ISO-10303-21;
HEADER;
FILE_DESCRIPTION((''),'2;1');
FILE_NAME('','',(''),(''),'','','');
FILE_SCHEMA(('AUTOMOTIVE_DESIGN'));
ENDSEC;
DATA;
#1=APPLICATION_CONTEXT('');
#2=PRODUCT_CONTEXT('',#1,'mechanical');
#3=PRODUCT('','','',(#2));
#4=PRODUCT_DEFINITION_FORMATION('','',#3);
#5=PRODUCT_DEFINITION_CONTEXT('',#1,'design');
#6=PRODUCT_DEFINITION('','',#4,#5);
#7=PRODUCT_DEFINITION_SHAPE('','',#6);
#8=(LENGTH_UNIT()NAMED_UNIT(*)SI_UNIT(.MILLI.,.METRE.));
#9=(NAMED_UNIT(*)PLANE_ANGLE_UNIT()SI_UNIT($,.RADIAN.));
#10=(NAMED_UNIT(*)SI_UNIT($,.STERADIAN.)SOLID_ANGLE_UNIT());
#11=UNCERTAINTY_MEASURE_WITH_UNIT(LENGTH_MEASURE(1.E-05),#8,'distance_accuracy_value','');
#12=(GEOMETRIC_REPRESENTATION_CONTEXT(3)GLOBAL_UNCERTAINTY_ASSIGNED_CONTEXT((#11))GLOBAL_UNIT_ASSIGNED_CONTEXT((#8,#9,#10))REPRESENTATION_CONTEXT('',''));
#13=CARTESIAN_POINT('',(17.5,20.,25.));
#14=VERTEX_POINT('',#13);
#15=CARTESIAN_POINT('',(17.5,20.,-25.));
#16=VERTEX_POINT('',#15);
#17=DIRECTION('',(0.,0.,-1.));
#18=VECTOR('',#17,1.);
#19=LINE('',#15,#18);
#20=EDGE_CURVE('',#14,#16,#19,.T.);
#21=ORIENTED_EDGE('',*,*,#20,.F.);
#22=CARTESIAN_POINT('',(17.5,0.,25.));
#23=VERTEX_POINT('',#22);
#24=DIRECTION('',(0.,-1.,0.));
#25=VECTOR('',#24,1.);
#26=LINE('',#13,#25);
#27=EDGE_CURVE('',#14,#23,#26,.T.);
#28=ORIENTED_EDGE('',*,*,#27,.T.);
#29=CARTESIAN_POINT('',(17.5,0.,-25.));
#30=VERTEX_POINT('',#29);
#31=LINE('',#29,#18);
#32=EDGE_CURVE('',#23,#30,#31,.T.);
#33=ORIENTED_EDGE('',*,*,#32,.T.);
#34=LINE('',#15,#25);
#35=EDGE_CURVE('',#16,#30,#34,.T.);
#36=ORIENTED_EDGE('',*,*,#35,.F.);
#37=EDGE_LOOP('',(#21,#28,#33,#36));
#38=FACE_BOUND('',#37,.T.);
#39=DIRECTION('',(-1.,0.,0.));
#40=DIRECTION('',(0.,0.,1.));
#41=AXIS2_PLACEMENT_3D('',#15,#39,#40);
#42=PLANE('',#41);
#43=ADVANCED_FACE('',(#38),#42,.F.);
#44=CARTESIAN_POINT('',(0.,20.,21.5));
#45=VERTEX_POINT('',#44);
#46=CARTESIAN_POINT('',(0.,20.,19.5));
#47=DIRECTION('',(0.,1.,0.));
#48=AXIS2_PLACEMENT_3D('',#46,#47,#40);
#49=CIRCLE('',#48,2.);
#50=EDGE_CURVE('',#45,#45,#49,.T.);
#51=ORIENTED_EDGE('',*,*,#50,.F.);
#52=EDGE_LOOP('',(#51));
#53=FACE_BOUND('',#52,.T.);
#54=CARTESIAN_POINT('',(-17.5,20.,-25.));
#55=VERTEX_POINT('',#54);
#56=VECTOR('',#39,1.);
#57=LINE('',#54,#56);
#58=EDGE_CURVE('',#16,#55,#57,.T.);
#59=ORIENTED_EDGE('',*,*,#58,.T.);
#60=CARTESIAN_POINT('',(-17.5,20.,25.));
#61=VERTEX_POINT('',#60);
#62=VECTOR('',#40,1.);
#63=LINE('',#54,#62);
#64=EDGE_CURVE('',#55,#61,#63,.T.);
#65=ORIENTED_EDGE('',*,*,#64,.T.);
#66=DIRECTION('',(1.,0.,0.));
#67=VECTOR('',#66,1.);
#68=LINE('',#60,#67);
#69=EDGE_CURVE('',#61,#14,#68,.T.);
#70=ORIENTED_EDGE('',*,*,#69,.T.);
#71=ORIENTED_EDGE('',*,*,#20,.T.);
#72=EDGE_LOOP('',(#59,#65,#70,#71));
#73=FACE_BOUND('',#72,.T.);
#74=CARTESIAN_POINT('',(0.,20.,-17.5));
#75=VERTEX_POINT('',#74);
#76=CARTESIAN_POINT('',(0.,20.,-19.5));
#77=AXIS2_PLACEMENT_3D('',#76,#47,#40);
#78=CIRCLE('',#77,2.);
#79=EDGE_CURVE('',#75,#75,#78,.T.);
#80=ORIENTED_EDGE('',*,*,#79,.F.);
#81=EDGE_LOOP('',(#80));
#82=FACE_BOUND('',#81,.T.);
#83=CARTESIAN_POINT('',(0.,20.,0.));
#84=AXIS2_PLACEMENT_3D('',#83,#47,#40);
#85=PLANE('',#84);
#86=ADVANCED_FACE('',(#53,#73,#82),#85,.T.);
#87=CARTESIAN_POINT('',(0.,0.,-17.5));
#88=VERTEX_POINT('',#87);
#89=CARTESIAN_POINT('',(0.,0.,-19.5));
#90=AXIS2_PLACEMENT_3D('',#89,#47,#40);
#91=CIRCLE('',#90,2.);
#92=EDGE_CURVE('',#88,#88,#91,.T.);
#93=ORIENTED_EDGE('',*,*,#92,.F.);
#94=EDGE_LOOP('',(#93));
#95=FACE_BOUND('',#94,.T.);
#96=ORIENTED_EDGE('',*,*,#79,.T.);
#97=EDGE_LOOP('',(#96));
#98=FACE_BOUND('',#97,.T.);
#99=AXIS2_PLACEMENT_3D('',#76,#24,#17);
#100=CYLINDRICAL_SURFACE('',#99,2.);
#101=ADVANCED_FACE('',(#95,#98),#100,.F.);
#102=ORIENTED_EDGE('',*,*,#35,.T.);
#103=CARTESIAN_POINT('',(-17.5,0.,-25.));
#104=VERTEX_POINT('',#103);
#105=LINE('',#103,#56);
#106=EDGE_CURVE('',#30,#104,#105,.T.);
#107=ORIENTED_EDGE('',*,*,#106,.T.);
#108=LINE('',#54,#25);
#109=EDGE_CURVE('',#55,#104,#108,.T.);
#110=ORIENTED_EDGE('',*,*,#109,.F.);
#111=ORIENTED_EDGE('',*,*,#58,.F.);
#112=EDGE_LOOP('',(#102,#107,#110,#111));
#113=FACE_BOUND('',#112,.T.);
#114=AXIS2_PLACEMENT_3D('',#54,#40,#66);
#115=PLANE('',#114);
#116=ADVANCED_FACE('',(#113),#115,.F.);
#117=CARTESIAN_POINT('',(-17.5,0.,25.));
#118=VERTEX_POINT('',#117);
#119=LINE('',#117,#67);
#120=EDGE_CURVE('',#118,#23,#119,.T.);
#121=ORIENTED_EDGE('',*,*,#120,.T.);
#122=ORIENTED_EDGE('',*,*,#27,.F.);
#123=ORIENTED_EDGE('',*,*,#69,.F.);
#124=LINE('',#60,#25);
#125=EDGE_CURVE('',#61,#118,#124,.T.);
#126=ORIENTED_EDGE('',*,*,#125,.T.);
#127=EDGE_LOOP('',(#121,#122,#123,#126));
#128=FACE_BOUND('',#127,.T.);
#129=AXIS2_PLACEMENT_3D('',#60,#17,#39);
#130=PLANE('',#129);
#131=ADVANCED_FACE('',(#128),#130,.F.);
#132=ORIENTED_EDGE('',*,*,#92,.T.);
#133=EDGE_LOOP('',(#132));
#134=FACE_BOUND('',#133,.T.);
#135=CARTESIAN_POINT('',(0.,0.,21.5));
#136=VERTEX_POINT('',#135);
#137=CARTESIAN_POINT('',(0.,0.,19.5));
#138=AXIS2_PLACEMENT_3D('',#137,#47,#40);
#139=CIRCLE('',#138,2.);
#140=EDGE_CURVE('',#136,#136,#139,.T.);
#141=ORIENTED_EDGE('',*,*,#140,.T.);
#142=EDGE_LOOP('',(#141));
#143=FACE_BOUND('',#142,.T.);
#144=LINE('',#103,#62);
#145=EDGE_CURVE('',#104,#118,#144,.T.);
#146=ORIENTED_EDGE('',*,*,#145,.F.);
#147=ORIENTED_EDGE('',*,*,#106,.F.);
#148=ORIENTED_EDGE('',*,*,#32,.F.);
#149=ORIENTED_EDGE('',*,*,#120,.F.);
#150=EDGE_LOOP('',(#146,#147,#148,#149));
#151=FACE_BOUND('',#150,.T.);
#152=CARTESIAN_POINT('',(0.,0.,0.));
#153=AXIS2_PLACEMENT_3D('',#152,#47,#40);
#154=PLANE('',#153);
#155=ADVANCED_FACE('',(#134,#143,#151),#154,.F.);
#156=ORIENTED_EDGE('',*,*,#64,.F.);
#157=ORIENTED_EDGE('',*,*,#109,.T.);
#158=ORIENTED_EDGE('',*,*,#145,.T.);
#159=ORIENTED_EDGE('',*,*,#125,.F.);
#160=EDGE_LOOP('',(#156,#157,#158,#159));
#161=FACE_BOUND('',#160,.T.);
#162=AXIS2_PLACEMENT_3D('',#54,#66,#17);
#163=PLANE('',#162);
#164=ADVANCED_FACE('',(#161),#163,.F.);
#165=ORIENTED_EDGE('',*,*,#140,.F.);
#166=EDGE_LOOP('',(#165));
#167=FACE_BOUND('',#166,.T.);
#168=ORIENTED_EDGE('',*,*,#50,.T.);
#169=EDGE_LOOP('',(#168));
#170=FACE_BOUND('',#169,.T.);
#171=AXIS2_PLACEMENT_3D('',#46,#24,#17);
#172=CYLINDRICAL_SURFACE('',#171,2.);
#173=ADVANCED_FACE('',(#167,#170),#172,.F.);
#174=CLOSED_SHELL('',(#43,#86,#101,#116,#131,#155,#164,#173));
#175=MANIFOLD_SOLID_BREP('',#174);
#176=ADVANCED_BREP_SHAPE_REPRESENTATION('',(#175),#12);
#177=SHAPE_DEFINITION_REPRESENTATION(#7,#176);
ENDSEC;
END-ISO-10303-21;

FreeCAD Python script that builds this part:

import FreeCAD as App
import Part
import Sketcher
Q = App.Units.Quantity

doc = App.newDocument("Part")
body = doc.addObject("PartDesign::Body", "Body")

# Sketch on XZ plane
sketch1 = body.newObject("Sketcher::SketchObject", "Sketch")
sketch1.AttachmentSupport = (doc.getObject("XZ_Plane"), [""])
sketch1.MapMode = "FlatFace"
sketch1.addGeometry([
    Part.LineSegment(App.Vector(-17.5, -25, 0), App.Vector(-17.5, 25, 0)),  # 0
    Part.LineSegment(App.Vector(-17.5, 25, 0), App.Vector(17.5, 25, 0)),  # 1
    Part.LineSegment(App.Vector(17.5, 25, 0), App.Vector(17.5, -25, 0)),  # 2
    Part.LineSegment(App.Vector(17.5, -25, 0), App.Vector(-17.5, -25, 0)),  # 3
    Part.Circle(App.Vector(0, 19.5, 0), App.Vector(0, 0, 1), 2),  # 4
    Part.Circle(App.Vector(0, -19.5, 0), App.Vector(0, 0, 1), 2),  # 5
], False)
sketch1.addConstraint([
    Sketcher.Constraint("Coincident", 0, 2, 1, 1),
    Sketcher.Constraint("Coincident", 1, 2, 2, 1),
    Sketcher.Constraint("Coincident", 2, 2, 3, 1),
    Sketcher.Constraint("Coincident", 3, 2, 0, 1),
    Sketcher.Constraint("Vertical", 0),
    Sketcher.Constraint("Horizontal", 1),
    Sketcher.Constraint("Vertical", 2),
    Sketcher.Constraint("Horizontal", 3),
    Sketcher.Constraint("Equal", 4, 5),
    Sketcher.Constraint("Symmetric", 4, 3, 5, 3, -1, 1),
    Sketcher.Constraint("Symmetric", 0, 2, 2, 2, -1, 1),
    Sketcher.Constraint("PointOnObject", 4, 3, -2),
    Sketcher.Constraint("Diameter", 4, Q("4 mm")),
    Sketcher.Constraint("DistanceX", 1, 1, 1, 2, Q("35 mm")),
    Sketcher.Constraint("DistanceY", 0, 1, 0, 2, Q("50 mm")),
    Sketcher.Constraint("DistanceY", 5, 3, 4, 3, Q("39 mm")),
])
pad1 = body.newObject("PartDesign::Pad", "Pad")
pad1.Profile = sketch1
pad1.Length = 20
pad1.Reversed = True

doc.recompute()
